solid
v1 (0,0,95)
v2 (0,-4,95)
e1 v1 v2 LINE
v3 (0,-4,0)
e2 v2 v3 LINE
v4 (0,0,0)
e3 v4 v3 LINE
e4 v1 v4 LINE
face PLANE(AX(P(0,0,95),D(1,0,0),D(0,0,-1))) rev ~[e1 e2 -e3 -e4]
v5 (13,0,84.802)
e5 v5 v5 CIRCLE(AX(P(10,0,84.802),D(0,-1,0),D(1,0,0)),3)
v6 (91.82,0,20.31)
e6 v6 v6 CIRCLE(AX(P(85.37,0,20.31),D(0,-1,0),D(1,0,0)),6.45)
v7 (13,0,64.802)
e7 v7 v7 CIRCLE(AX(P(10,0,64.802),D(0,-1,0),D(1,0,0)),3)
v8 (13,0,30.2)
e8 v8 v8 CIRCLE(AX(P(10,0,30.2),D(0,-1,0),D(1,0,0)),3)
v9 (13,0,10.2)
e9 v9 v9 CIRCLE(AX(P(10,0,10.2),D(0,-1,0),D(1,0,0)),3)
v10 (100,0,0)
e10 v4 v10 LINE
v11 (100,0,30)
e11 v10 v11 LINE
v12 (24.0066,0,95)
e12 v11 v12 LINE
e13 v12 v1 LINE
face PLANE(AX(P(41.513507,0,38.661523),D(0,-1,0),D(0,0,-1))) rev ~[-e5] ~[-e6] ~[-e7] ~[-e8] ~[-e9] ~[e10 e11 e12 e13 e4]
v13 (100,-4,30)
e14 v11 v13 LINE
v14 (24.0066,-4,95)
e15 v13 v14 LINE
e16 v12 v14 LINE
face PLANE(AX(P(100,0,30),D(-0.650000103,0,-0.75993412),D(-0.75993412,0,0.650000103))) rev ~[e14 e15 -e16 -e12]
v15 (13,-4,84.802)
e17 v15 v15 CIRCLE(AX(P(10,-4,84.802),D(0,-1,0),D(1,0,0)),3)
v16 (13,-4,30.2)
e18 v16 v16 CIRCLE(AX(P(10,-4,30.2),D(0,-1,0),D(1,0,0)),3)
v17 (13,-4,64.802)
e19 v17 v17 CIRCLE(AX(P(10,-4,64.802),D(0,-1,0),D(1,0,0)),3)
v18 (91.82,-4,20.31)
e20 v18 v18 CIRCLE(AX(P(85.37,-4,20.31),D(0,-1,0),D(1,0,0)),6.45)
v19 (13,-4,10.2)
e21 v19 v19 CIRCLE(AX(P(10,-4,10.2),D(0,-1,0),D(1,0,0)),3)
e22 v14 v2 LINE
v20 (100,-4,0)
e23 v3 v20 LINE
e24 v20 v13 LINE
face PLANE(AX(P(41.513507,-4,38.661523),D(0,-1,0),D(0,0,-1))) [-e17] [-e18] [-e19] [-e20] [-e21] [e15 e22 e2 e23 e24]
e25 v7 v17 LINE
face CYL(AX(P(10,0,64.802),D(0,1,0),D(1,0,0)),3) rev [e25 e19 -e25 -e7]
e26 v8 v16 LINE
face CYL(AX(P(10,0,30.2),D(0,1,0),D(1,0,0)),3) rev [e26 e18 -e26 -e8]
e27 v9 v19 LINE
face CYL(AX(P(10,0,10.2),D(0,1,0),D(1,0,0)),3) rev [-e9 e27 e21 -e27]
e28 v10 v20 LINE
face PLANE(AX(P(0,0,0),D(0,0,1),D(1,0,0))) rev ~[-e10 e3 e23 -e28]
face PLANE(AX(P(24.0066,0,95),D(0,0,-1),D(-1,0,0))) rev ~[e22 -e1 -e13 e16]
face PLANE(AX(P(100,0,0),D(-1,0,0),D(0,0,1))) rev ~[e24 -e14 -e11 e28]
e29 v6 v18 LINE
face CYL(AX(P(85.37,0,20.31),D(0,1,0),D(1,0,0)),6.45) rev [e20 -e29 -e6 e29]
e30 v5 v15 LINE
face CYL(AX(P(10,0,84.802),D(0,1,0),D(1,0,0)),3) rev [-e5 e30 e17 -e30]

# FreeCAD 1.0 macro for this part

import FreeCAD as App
import Part
import Sketcher
from FreeCAD import Vector
Q = App.Units.Quantity


def add_polygon(sketch, points):
    """Adds a closed chain of lines whose ends are joined by coincident constraints."""
    first, n = sketch.GeometryCount, len(points)
    for a, b in zip(points, points[1:] + points[:1]):
        sketch.addGeometry(Part.LineSegment(App.Vector(*a, 0), App.Vector(*b, 0)), False)
    for i in range(n):
        sketch.addConstraint(Sketcher.Constraint("Coincident", first + i, 2, first + (i + 1) % n, 1))

doc = App.newDocument("Part")
body = doc.addObject("PartDesign::Body", "Body")

# Sketch on XZ plane
sketch1 = body.newObject("Sketcher::SketchObject", "Sketch")
sketch1.AttachmentSupport = (doc.getObject("XZ_Plane"), [""])
sketch1.MapMode = "FlatFace"
add_polygon(sketch1, [(100, 30), (24, 95), (0, 95), (0, 0), (100, 0)])  # lines 0-4
sketch1.addGeometry(Part.Circle(Vector(10, 10.2, 0), Vector(0, 0, 1), 3), False)  # 5
sketch1.addGeometry(Part.Circle(Vector(10, 30.2, 0), Vector(0, 0, 1), 3), False)  # 6
sketch1.addGeometry(Part.Circle(Vector(85.4, 20.3, 0), Vector(0, 0, 1), 6.5), False)  # 7
sketch1.addGeometry(Part.Circle(Vector(10, 64.8, 0), Vector(0, 0, 1), 3), False)  # 8
sketch1.addGeometry(Part.Circle(Vector(10, 84.8, 0), Vector(0, 0, 1), 3), False)  # 9
sketch1.addConstraint(Sketcher.Constraint("Horizontal", 1))
sketch1.addConstraint(Sketcher.Constraint("Vertical", 2))
sketch1.addConstraint(Sketcher.Constraint("Horizontal", 3))
sketch1.addConstraint(Sketcher.Constraint("Vertical", 4))
sketch1.addConstraint(Sketcher.Constraint("Coincident", 2, 2, -1, 1))
sketch1.addConstraint(Sketcher.Constraint("Equal", 5, 6))
sketch1.addConstraint(Sketcher.Constraint("Equal", 6, 8))
sketch1.addConstraint(Sketcher.Constraint("Equal", 8, 9))
sketch1.addConstraint(Sketcher.Constraint("Vertical", 5, 3, 6, 3))
sketch1.addConstraint(Sketcher.Constraint("Vertical", 6, 3, 8, 3))
sketch1.addConstraint(Sketcher.Constraint("Vertical", 8, 3, 9, 3))
sketch1.addConstraint(Sketcher.Constraint("Diameter", 5, Q("6 mm")))
sketch1.addConstraint(Sketcher.Constraint("Diameter", 7, Q("12.9 mm")))
sketch1.addConstraint(Sketcher.Constraint("DistanceX", 3, 1, 3, 2, Q("100 mm")))
sketch1.addConstraint(Sketcher.Constraint("DistanceY", 2, 2, 2, 1, Q("95 mm")))
sketch1.addConstraint(Sketcher.Constraint("DistanceY", 4, 1, 4, 2, Q("30 mm")))
sketch1.addConstraint(Sketcher.Constraint("Distance", 0, Q("100 mm")))
sketch1.addConstraint(Sketcher.Constraint("DistanceX", -1, 1, 5, 3, Q("10 mm")))
sketch1.addConstraint(Sketcher.Constraint("DistanceY", 5, 3, 6, 3, Q("20 mm")))
sketch1.addConstraint(Sketcher.Constraint("DistanceY", 8, 3, 9, 3, Q("20 mm")))
sketch1.addConstraint(Sketcher.Constraint("DistanceY", -1, 1, 5, 3, Q("10.2 mm")))
sketch1.addConstraint(Sketcher.Constraint("DistanceX", -1, 1, 7, 3, Q("85.37 mm")))
sketch1.addConstraint(Sketcher.Constraint("DistanceY", -1, 1, 7, 3, Q("20.31 mm")))
sketch1.addConstraint(Sketcher.Constraint("DistanceY", -1, 1, 8, 3, Q("64.802 mm")))
pad1 = body.newObject("PartDesign::Pad", "Pad")
pad1.Profile = sketch1
pad1.Length = 4

doc.recompute()
